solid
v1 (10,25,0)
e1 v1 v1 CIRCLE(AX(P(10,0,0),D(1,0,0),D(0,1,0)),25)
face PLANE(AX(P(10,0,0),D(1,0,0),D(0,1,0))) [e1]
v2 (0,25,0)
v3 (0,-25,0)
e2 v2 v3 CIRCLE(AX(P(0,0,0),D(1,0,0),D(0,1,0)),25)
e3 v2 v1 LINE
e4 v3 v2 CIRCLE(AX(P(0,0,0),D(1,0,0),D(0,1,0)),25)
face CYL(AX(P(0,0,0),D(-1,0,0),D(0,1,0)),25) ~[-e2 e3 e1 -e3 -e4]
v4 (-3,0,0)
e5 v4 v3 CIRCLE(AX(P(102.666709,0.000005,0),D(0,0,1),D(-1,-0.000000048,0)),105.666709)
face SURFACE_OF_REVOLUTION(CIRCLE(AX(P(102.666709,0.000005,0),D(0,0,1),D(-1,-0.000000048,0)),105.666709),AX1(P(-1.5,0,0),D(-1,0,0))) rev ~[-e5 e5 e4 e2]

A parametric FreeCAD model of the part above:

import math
import FreeCAD as App
import Part
import Sketcher

V = App.Vector
Q = App.Units.Quantity

doc = App.newDocument("Part")
body = doc.addObject("PartDesign::Body", "Body")

# Sketch on YZ plane
sketch1 = body.newObject("Sketcher::SketchObject", "Sketch")
sketch1.AttachmentSupport = (doc.getObject("YZ_Plane"), [""])
sketch1.MapMode = "FlatFace"
sketch1.addGeometry(Part.Circle(V(0, 0, 0), V(0, 0, 1), 25), False)
sketch1.addConstraint(Sketcher.Constraint("Coincident", 0, 3, -1, 1))
sketch1.addConstraint(Sketcher.Constraint("Diameter", 0, Q("50 mm")))
pad1 = body.newObject("PartDesign::Pad", "Pad")
pad1.Profile = sketch1
pad1.Length = 10

# Sketch on XY plane
sketch2 = body.newObject("Sketcher::SketchObject", "Sketch001")
sketch2.AttachmentSupport = (doc.getObject("XY_Plane"), [""])
sketch2.MapMode = "FlatFace"
sketch2.addGeometry(Part.LineSegment(V(0, -25, 0), V(0, 0, 0)), False)
sketch2.addGeometry(Part.LineSegment(V(0, 0, 0), V(-3, 0, 0)), False)
sketch2.addGeometry(Part.ArcOfCircle(Part.Circle(V(102.7, 0, 0), V(0, 0, 1), 105.7), math.radians(-180), math.radians(-166.31)), False)
sketch2.addConstraint(Sketcher.Constraint("Coincident", 0, 2, 1, 1))
sketch2.addConstraint(Sketcher.Constraint("Coincident", 1, 2, 2, 1))
sketch2.addConstraint(Sketcher.Constraint("Coincident", 2, 2, 0, 1))
sketch2.addConstraint(Sketcher.Constraint("Vertical", 0))
sketch2.addConstraint(Sketcher.Constraint("Horizontal", 1))
sketch2.addConstraint(Sketcher.Constraint("Coincident", 0, 2, -1, 1))
sketch2.addConstraint(Sketcher.Constraint("DistanceX", 1, 2, 1, 1, Q("3 mm")))
sketch2.addConstraint(Sketcher.Constraint("DistanceY", 0, 1, 0, 2, Q("25 mm")))
sketch2.addConstraint(Sketcher.Constraint("Radius", 2, Q("105.666709 mm")))
revolution = body.newObject("PartDesign::Revolution", "Revolution")
revolution.Profile = sketch2
revolution.ReferenceAxis = (sketch2, ["H_Axis"])
revolution.Angle = 360

doc.recompute()
